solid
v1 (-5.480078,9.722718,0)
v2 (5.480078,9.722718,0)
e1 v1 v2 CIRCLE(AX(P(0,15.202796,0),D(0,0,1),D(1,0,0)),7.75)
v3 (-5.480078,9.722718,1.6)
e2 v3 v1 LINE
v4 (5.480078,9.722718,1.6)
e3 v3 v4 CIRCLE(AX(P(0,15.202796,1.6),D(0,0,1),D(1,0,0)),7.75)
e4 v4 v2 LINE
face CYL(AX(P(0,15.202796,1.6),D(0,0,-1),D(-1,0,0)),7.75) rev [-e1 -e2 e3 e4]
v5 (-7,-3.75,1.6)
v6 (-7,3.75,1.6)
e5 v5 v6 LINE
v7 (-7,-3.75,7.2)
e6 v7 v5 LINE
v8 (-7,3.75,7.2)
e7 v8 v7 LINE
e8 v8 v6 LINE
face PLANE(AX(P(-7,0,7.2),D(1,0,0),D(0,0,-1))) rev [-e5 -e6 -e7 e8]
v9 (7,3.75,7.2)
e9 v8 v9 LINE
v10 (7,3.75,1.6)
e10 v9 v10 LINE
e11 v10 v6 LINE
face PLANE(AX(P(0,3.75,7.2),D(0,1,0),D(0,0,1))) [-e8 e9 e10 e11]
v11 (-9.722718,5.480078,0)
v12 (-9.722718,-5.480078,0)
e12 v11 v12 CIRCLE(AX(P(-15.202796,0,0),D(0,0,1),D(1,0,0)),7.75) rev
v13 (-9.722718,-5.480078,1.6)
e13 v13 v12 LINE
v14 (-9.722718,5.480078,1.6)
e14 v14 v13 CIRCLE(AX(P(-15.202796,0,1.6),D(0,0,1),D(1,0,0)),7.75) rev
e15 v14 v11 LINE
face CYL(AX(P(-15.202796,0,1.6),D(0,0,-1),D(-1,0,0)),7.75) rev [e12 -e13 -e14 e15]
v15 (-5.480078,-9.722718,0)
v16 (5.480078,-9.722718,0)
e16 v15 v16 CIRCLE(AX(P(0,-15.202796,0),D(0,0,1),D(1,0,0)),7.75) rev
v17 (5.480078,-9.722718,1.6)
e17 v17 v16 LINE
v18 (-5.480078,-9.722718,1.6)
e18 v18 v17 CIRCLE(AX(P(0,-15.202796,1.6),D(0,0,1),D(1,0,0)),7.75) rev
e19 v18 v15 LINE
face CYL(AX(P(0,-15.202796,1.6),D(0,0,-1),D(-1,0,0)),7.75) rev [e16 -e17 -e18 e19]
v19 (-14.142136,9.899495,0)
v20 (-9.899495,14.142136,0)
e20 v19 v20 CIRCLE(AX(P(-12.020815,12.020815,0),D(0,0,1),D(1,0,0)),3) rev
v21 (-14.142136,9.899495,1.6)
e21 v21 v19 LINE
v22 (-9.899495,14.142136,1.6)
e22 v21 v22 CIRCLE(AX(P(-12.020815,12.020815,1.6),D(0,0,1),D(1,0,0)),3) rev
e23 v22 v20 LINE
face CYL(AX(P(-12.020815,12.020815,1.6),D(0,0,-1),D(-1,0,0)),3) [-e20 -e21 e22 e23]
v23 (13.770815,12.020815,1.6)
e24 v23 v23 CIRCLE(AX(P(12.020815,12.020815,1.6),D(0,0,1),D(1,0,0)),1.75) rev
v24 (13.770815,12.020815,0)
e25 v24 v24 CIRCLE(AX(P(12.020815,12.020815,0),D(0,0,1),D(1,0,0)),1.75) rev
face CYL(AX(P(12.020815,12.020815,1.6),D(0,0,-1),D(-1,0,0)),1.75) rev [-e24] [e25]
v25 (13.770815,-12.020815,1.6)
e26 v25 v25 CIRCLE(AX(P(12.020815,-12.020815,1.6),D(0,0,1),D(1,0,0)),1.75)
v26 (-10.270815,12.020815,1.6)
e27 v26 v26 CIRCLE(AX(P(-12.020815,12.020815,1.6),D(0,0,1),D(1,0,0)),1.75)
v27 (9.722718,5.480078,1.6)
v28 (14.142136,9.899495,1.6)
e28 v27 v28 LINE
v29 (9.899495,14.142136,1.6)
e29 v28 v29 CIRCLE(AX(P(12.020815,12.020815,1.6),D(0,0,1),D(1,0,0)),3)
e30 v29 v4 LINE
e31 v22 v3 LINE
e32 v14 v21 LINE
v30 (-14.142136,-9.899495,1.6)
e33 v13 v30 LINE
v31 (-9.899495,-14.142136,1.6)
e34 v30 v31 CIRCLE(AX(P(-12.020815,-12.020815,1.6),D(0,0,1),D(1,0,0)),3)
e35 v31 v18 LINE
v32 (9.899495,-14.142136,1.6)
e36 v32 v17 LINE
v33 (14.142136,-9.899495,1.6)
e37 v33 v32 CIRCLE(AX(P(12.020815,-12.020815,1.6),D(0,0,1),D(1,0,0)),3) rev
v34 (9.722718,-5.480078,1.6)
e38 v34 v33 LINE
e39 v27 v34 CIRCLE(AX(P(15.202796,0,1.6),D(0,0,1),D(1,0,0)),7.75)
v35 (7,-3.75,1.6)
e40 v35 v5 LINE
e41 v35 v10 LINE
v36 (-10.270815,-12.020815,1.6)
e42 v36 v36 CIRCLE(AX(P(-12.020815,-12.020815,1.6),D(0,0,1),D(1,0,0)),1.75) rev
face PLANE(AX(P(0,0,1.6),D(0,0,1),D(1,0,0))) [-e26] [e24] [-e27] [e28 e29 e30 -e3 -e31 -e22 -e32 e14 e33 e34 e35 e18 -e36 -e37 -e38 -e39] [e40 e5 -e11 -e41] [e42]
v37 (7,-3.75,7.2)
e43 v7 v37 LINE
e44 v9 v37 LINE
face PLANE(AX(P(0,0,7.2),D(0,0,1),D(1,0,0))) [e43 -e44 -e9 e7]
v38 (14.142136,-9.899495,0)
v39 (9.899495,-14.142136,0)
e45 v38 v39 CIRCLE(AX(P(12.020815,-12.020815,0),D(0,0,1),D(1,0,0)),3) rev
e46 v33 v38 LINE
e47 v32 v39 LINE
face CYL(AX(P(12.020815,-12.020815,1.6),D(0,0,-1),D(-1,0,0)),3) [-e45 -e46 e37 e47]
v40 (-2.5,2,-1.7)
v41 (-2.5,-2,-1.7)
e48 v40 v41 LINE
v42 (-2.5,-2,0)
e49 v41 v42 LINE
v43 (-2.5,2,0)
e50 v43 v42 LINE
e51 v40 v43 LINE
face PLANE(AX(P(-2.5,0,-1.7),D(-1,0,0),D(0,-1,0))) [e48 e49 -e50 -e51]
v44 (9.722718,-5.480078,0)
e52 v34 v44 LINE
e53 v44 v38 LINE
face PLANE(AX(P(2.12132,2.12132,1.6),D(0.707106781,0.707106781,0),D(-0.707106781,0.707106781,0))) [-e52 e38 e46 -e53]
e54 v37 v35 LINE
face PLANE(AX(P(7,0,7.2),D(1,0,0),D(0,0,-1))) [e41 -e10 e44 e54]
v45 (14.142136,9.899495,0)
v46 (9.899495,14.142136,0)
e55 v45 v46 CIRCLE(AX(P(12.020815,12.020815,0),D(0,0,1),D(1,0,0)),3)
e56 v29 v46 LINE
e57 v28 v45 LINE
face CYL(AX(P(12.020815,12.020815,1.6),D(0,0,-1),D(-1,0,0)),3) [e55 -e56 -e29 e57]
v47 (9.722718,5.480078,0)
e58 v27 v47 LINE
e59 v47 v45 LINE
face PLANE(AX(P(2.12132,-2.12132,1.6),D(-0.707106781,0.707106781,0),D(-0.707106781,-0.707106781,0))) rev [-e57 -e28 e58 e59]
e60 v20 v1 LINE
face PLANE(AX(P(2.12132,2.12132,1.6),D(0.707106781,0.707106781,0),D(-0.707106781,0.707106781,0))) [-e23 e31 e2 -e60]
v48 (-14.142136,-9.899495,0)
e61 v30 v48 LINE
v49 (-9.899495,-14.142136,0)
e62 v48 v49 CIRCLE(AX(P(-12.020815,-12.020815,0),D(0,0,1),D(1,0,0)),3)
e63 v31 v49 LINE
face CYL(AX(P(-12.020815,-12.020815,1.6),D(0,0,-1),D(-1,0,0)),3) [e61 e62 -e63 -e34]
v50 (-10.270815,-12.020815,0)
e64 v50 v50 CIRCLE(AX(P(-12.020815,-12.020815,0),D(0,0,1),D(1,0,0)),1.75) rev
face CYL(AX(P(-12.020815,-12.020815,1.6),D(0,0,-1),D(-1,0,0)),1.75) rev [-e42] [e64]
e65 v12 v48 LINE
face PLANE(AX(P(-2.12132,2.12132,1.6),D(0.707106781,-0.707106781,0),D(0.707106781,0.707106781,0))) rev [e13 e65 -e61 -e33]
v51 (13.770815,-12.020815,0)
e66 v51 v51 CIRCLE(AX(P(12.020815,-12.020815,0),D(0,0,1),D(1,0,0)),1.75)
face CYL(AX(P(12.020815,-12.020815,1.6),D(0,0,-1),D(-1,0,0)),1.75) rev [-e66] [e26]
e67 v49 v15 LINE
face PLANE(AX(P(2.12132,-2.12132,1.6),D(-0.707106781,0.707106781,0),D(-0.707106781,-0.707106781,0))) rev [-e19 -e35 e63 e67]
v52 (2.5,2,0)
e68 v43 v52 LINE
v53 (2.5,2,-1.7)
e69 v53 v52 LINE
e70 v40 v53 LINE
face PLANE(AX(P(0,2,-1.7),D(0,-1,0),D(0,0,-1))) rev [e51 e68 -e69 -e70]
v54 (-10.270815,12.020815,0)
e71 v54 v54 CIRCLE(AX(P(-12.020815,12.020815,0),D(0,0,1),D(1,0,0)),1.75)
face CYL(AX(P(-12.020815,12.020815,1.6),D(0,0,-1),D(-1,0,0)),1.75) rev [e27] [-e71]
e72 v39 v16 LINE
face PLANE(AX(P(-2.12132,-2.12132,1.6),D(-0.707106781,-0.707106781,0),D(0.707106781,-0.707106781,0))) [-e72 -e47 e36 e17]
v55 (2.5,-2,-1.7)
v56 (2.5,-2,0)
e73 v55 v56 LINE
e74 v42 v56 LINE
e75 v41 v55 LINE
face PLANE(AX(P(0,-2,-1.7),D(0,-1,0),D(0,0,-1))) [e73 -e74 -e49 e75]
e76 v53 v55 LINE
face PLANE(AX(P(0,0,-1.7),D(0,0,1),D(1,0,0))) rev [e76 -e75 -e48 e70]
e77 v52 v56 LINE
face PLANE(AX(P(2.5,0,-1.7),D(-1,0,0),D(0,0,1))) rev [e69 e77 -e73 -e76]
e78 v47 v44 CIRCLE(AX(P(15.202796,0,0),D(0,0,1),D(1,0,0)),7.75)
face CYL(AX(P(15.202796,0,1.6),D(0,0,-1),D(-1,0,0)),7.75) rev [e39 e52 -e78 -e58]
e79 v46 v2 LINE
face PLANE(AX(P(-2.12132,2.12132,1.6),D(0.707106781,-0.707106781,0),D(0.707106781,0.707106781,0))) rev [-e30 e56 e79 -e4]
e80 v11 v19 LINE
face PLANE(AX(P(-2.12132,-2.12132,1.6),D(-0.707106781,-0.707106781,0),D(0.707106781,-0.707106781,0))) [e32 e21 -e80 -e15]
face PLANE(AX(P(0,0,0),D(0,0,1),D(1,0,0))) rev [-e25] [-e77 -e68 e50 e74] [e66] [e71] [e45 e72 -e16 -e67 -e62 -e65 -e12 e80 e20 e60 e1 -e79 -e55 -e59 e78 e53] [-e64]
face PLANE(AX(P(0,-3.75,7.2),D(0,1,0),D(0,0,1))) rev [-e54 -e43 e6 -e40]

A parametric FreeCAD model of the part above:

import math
import FreeCAD as App
import Part
import Sketcher

doc = App.newDocument("Part")
body = doc.addObject("PartDesign::Body", "Body")

sketch1 = doc.addObject("Sketcher::SketchObject", "Sketch")
body.addObject(sketch1)
sketch1.AttachmentSupport = (doc.XY_Plane, [""])
sketch1.MapMode = "FlatFace"
sketch1.addGeometry([
    Part.LineSegment(App.Vector(-14.142136, 9.899495, 0), App.Vector(-9.722718, 5.480078, 0)),
    Part.ArcOfCircle(Part.Circle(App.Vector(-15.202796, 0, 0), App.Vector(0, 0, 1), 7.75), math.radians(-45), math.radians(45)),
    Part.LineSegment(App.Vector(-9.722718, -5.480078, 0), App.Vector(-14.142136, -9.899495, 0)),
    Part.ArcOfCircle(Part.Circle(App.Vector(-12.020815, -12.020815, 0), App.Vector(0, 0, 1), 3), math.radians(135), math.radians(315)),
    Part.LineSegment(App.Vector(-9.899495, -14.142136, 0), App.Vector(-5.480078, -9.722718, 0)),
    Part.ArcOfCircle(Part.Circle(App.Vector(0, -15.202796, 0), App.Vector(0, 0, 1), 7.75), math.radians(45), math.radians(135)),
    Part.LineSegment(App.Vector(5.480078, -9.722718, 0), App.Vector(9.899495, -14.142136, 0)),
    Part.ArcOfCircle(Part.Circle(App.Vector(12.020815, -12.020815, 0), App.Vector(0, 0, 1), 3), math.radians(-135), math.radians(45)),
    Part.LineSegment(App.Vector(14.142136, -9.899495, 0), App.Vector(9.722718, -5.480078, 0)),
    Part.ArcOfCircle(Part.Circle(App.Vector(15.202796, 0, 0), App.Vector(0, 0, 1), 7.75), math.radians(135), math.radians(225)),
    Part.LineSegment(App.Vector(9.722718, 5.480078, 0), App.Vector(14.142136, 9.899495, 0)),
    Part.ArcOfCircle(Part.Circle(App.Vector(12.020815, 12.020815, 0), App.Vector(0, 0, 1), 3), math.radians(-45), math.radians(135)),
    Part.LineSegment(App.Vector(9.899495, 14.142136, 0), App.Vector(5.480078, 9.722718, 0)),
    Part.ArcOfCircle(Part.Circle(App.Vector(0, 15.202796, 0), App.Vector(0, 0, 1), 7.75), math.radians(-135), math.radians(-45)),
    Part.LineSegment(App.Vector(-5.480078, 9.722718, 0), App.Vector(-9.899495, 14.142136, 0)),
    Part.ArcOfCircle(Part.Circle(App.Vector(-12.020815, 12.020815, 0), App.Vector(0, 0, 1), 3), math.radians(45), math.radians(225)),
    Part.Circle(App.Vector(12.020815, -12.020815, 0), App.Vector(0, 0, 1), 1.75),
    Part.Circle(App.Vector(-12.020815, -12.020815, 0), App.Vector(0, 0, 1), 1.75),
    Part.Circle(App.Vector(12.020815, 12.020815, 0), App.Vector(0, 0, 1), 1.75),
    Part.LineSegment(App.Vector(-2.5, -2, 0), App.Vector(-2.5, 2, 0)),
    Part.LineSegment(App.Vector(-2.5, 2, 0), App.Vector(2.5, 2, 0)),
    Part.LineSegment(App.Vector(2.5, 2, 0), App.Vector(2.5, -2, 0)),
    Part.LineSegment(App.Vector(2.5, -2, 0), App.Vector(-2.5, -2, 0)),
    Part.Circle(App.Vector(-12.020815, 12.020815, 0), App.Vector(0, 0, 1), 1.75),
], False)
sketch1.addConstraint([
    Sketcher.Constraint("Tangent", 0, 2, 1, 2),
    Sketcher.Constraint("Tangent", 1, 1, 2, 1),
    Sketcher.Constraint("Tangent", 2, 2, 3, 1),
    Sketcher.Constraint("Tangent", 3, 2, 4, 1),
    Sketcher.Constraint("Tangent", 4, 2, 5, 2),
    Sketcher.Constraint("Tangent", 5, 1, 6, 1),
    Sketcher.Constraint("Tangent", 6, 2, 7, 1),
    Sketcher.Constraint("Tangent", 7, 2, 8, 1),
    Sketcher.Constraint("Tangent", 8, 2, 9, 2),
    Sketcher.Constraint("Tangent", 9, 1, 10, 1),
    Sketcher.Constraint("Tangent", 10, 2, 11, 1),
    Sketcher.Constraint("Tangent", 11, 2, 12, 1),
    Sketcher.Constraint("Tangent", 12, 2, 13, 2),
    Sketcher.Constraint("Tangent", 13, 1, 14, 1),
    Sketcher.Constraint("Tangent", 14, 2, 15, 1),
    Sketcher.Constraint("Tangent", 15, 2, 0, 1),
    Sketcher.Constraint("Coincident", 19, 2, 20, 1),
    Sketcher.Constraint("Coincident", 20, 2, 21, 1),
    Sketcher.Constraint("Coincident", 21, 2, 22, 1),
    Sketcher.Constraint("Coincident", 22, 2, 19, 1),
    Sketcher.Constraint("Vertical", 19),
    Sketcher.Constraint("Horizontal", 20),
    Sketcher.Constraint("Vertical", 21),
    Sketcher.Constraint("Horizontal", 22),
    Sketcher.Constraint("Coincident", 16, 3, 7, 3),
    Sketcher.Constraint("Coincident", 17, 3, 3, 3),
    Sketcher.Constraint("Coincident", 18, 3, 11, 3),
    Sketcher.Constraint("Coincident", 23, 3, 15, 3),
    Sketcher.Constraint("Equal", 1, 5),
    Sketcher.Constraint("Equal", 3, 7),
    Sketcher.Constraint("Equal", 5, 9),
    Sketcher.Constraint("Equal", 7, 11),
    Sketcher.Constraint("Equal", 9, 13),
    Sketcher.Constraint("Equal", 11, 15),
    Sketcher.Constraint("Equal", 16, 17),
    Sketcher.Constraint("Equal", 17, 18),
    Sketcher.Constraint("Equal", 18, 23),
    Sketcher.Constraint("Symmetric", 1, 3, 9, 3, -1, 1),
    Sketcher.Constraint("Symmetric", 3, 3, 11, 3, -1, 1),
    Sketcher.Constraint("Symmetric", 5, 3, 13, 3, -1, 1),
    Sketcher.Constraint("Symmetric", 7, 3, 15, 3, -1, 1),
    Sketcher.Constraint("Symmetric", 19, 2, 21, 2, -1, 1),
    Sketcher.Constraint("Symmetric", 3, 3, 7, 3, -2),
    Sketcher.Constraint("PointOnObject", 1, 3, -1),
    Sketcher.Constraint("PointOnObject", 5, 3, -2),
    Sketcher.Constraint("Perpendicular", 0, 2),
    Sketcher.Constraint("Parallel", 2, 4),
    Sketcher.Constraint("Equal", 2, 4),
    Sketcher.Constraint("Radius", 3, 3.0),
    Sketcher.Constraint("Diameter", 16, 3.5),
    Sketcher.Constraint("DistanceX", 20, 1, 20, 2, 5.0),
    Sketcher.Constraint("DistanceY", 19, 1, 19, 2, 4.0),
    Sketcher.Constraint("Radius", 1, 7.75),
    Sketcher.Constraint("Distance", 0, 6.25),
])
pad1 = doc.addObject("PartDesign::Pad", "Pad")
body.addObject(pad1)
pad1.Profile = sketch1
pad1.Length = 1.6

sketch2 = doc.addObject("Sketcher::SketchObject", "Sketch001")
body.addObject(sketch2)
sketch2.AttachmentSupport = (doc.XY_Plane, [""])
sketch2.MapMode = "FlatFace"
sketch2.addGeometry([
    Part.LineSegment(App.Vector(-7, 3.75, 0), App.Vector(-7, -3.75, 0)),
    Part.LineSegment(App.Vector(-7, -3.75, 0), App.Vector(7, -3.75, 0)),
    Part.LineSegment(App.Vector(7, -3.75, 0), App.Vector(7, 3.75, 0)),
    Part.LineSegment(App.Vector(7, 3.75, 0), App.Vector(-7, 3.75, 0)),
], False)
sketch2.addConstraint([
    Sketcher.Constraint("Coincident", 0, 2, 1, 1),
    Sketcher.Constraint("Coincident", 1, 2, 2, 1),
    Sketcher.Constraint("Coincident", 2, 2, 3, 1),
    Sketcher.Constraint("Coincident", 3, 2, 0, 1),
    Sketcher.Constraint("Vertical", 0),
    Sketcher.Constraint("Horizontal", 1),
    Sketcher.Constraint("Vertical", 2),
    Sketcher.Constraint("Horizontal", 3),
    Sketcher.Constraint("Symmetric", 0, 2, 2, 2, -1, 1),
    Sketcher.Constraint("DistanceX", 1, 1, 1, 2, 14.0),
    Sketcher.Constraint("DistanceY", 0, 2, 0, 1, 7.5),
])
pad2 = doc.addObject("PartDesign::Pad", "Pad001")
body.addObject(pad2)
pad2.Profile = sketch2
pad2.Length = 7.2

sketch3 = doc.addObject("Sketcher::SketchObject", "Sketch002")
body.addObject(sketch3)
sketch3.AttachmentSupport = (doc.XY_Plane, [""])
sketch3.MapMode = "FlatFace"
sketch3.addGeometry([
    Part.LineSegment(App.Vector(-2.5, 2, 0), App.Vector(-2.5, -2, 0)),
    Part.LineSegment(App.Vector(-2.5, -2, 0), App.Vector(2.5, -2, 0)),
    Part.LineSegment(App.Vector(2.5, -2, 0), App.Vector(2.5, 2, 0)),
    Part.LineSegment(App.Vector(2.5, 2, 0), App.Vector(-2.5, 2, 0)),
], False)
sketch3.addConstraint([
    Sketcher.Constraint("Coincident", 0, 2, 1, 1),
    Sketcher.Constraint("Coincident", 1, 2, 2, 1),
    Sketcher.Constraint("Coincident", 2, 2, 3, 1),
    Sketcher.Constraint("Coincident", 3, 2, 0, 1),
    Sketcher.Constraint("Vertical", 0),
    Sketcher.Constraint("Horizontal", 1),
    Sketcher.Constraint("Vertical", 2),
    Sketcher.Constraint("Horizontal", 3),
    Sketcher.Constraint("Symmetric", 0, 2, 2, 2, -1, 1),
    Sketcher.Constraint("DistanceX", 1, 1, 1, 2, 5.0),
    Sketcher.Constraint("DistanceY", 0, 2, 0, 1, 4.0),
])
pad3 = doc.addObject("PartDesign::Pad", "Pad002")
body.addObject(pad3)
pad3.Profile = sketch3
pad3.Length = 1.7
pad3.Reversed = True

doc.recompute()
